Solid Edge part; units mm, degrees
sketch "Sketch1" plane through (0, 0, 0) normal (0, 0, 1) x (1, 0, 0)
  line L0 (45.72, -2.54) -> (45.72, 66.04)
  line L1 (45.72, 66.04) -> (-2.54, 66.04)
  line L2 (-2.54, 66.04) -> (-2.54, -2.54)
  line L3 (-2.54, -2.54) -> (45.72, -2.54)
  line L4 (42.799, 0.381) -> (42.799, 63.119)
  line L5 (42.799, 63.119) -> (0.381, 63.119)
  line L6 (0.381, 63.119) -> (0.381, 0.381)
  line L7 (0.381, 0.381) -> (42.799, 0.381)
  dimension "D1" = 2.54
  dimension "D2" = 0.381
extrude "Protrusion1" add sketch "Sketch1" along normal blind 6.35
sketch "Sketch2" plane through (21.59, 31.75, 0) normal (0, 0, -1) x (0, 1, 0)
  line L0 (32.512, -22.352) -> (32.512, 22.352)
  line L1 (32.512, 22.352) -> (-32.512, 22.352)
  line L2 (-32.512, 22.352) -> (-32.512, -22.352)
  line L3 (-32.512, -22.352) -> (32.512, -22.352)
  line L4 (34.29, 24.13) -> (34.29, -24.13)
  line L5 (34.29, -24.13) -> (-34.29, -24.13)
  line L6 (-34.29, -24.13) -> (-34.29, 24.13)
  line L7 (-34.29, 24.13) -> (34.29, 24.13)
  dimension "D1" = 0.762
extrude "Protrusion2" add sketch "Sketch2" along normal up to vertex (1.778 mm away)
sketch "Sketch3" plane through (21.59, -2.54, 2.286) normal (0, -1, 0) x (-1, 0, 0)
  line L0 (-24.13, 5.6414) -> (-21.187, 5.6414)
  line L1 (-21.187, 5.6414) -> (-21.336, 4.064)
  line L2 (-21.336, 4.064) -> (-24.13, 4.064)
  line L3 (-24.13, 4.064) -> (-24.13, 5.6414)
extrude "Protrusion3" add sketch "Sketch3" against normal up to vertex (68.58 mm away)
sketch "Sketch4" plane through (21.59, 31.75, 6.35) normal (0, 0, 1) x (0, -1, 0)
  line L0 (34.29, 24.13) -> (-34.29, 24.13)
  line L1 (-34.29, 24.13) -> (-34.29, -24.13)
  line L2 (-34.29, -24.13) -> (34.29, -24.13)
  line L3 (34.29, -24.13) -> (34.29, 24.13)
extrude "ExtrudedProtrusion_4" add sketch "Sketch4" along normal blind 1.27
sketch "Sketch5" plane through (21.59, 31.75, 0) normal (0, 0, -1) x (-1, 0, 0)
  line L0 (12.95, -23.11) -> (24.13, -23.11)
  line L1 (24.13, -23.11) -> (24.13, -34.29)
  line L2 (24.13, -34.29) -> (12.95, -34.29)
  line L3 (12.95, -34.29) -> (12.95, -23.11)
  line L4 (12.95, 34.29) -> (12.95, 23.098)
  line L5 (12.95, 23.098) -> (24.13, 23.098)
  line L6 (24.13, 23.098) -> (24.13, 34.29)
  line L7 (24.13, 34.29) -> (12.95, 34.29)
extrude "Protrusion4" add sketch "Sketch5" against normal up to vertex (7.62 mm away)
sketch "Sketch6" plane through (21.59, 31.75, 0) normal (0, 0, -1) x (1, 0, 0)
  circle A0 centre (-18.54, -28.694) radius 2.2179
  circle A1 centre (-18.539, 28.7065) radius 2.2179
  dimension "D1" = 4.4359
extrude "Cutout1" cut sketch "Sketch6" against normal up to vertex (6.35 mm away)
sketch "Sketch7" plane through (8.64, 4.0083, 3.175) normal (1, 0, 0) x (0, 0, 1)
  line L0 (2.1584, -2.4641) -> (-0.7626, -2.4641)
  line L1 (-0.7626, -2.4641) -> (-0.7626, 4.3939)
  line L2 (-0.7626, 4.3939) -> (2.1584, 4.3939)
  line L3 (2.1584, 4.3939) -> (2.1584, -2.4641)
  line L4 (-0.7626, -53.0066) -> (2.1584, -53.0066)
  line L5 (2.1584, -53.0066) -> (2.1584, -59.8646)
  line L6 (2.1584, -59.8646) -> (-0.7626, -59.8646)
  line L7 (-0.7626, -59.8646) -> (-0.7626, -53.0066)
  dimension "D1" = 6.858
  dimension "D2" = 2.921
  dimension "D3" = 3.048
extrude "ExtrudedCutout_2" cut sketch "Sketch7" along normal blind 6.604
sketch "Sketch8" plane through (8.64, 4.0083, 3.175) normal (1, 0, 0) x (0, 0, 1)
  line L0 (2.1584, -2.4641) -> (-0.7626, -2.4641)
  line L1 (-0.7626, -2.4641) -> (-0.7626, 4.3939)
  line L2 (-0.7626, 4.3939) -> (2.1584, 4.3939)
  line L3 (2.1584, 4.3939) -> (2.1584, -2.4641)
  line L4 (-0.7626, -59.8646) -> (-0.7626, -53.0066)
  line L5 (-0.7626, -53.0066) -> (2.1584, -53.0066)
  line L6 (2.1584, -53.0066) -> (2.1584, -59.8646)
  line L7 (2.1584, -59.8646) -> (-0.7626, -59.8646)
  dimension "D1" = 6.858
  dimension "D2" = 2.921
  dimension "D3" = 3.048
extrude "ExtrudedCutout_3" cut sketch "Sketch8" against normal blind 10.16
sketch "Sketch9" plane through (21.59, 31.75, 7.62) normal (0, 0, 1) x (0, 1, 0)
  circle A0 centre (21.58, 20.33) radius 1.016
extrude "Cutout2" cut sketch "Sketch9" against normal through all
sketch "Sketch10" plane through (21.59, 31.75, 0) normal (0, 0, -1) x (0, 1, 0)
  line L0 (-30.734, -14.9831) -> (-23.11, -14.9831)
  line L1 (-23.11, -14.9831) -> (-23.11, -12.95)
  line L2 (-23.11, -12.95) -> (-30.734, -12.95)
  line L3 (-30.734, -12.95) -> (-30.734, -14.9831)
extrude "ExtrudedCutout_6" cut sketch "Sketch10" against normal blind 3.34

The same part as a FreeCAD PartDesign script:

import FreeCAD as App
import Part
import Sketcher

V = App.Vector
Q = App.Units.Quantity

doc = App.newDocument("Part")
body = doc.addObject("PartDesign::Body", "Body")

# Sketch on XY plane
sketch1 = body.newObject("Sketcher::SketchObject", "Sketch")
sketch1.AttachmentSupport = (doc.getObject("XY_Plane"), [""])
sketch1.MapMode = "FlatFace"
sketch1.addGeometry([
    Part.LineSegment(V(-2.54, -2.54, 0), V(45.72, -2.54, 0)),  # 0
    Part.LineSegment(V(45.72, -2.54, 0), V(45.72, 66.04, 0)),  # 1
    Part.LineSegment(V(45.72, 66.04, 0), V(-2.54, 66.04, 0)),  # 2
    Part.LineSegment(V(-2.54, 66.04, 0), V(-2.54, -2.54, 0)),  # 3
    Part.LineSegment(V(42.799, 63.119, 0), V(42.799, 0.381, 0)),  # 4
    Part.LineSegment(V(42.799, 0.381, 0), V(0.381, 0.381, 0)),  # 5
    Part.LineSegment(V(0.381, 0.381, 0), V(0.381, 63.119, 0)),  # 6
    Part.LineSegment(V(0.381, 63.119, 0), V(42.799, 63.119, 0)),  # 7
], False)
sketch1.addConstraint([
    Sketcher.Constraint("Coincident", 0, 2, 1, 1),
    Sketcher.Constraint("Coincident", 1, 2, 2, 1),
    Sketcher.Constraint("Coincident", 2, 2, 3, 1),
    Sketcher.Constraint("Coincident", 3, 2, 0, 1),
    Sketcher.Constraint("Coincident", 4, 2, 5, 1),
    Sketcher.Constraint("Coincident", 5, 2, 6, 1),
    Sketcher.Constraint("Coincident", 6, 2, 7, 1),
    Sketcher.Constraint("Coincident", 7, 2, 4, 1),
    Sketcher.Constraint("Horizontal", 0),
    Sketcher.Constraint("Vertical", 1),
    Sketcher.Constraint("Horizontal", 2),
    Sketcher.Constraint("Vertical", 3),
    Sketcher.Constraint("Vertical", 4),
    Sketcher.Constraint("Horizontal", 5),
    Sketcher.Constraint("Vertical", 6),
    Sketcher.Constraint("Horizontal", 7),
    Sketcher.Constraint("DistanceX", 0, 1, 0, 2, Q("1.9 in")),
    Sketcher.Constraint("DistanceY", 1, 1, 1, 2, Q("2.7 in")),
    Sketcher.Constraint("DistanceX", 5, 2, 5, 1, Q("1.67 in")),
    Sketcher.Constraint("DistanceY", 4, 2, 4, 1, Q("2.47 in")),
    Sketcher.Constraint("DistanceX", -1, 1, 0, 2, Q("1.8 in")),
    Sketcher.Constraint("DistanceY", 0, 2, -1, 1, Q("0.1 in")),
    Sketcher.Constraint("DistanceX", -1, 1, 4, 2, Q("1.685 in")),
    Sketcher.Constraint("DistanceY", -1, 1, 4, 2, Q("0.015 in")),
])
pad1 = body.newObject("PartDesign::Pad", "Pad")
pad1.Profile = sketch1
pad1.Length = Q("0.25 in")

# Sketch on XY plane
sketch2 = body.newObject("Sketcher::SketchObject", "Sketch001")
sketch2.AttachmentSupport = (doc.getObject("XY_Plane"), [""])
sketch2.MapMode = "FlatFace"
sketch2.addGeometry([
    Part.LineSegment(V(-2.54, 66.04, 0), V(45.72, 66.04, 0)),  # 0
    Part.LineSegment(V(45.72, 66.04, 0), V(45.72, -2.54, 0)),  # 1
    Part.LineSegment(V(45.72, -2.54, 0), V(-2.54, -2.54, 0)),  # 2
    Part.LineSegment(V(-2.54, -2.54, 0), V(-2.54, 66.04, 0)),  # 3
    Part.LineSegment(V(43.942, 64.262, 0), V(-0.762, 64.262, 0)),  # 4
    Part.LineSegment(V(-0.762, 64.262, 0), V(-0.762, -0.762, 0)),  # 5
    Part.LineSegment(V(-0.762, -0.762, 0), V(43.942, -0.762, 0)),  # 6
    Part.LineSegment(V(43.942, -0.762, 0), V(43.942, 64.262, 0)),  # 7
], False)
sketch2.addConstraint([
    Sketcher.Constraint("Coincident", 0, 2, 1, 1),
    Sketcher.Constraint("Coincident", 1, 2, 2, 1),
    Sketcher.Constraint("Coincident", 2, 2, 3, 1),
    Sketcher.Constraint("Coincident", 3, 2, 0, 1),
    Sketcher.Constraint("Coincident", 4, 2, 5, 1),
    Sketcher.Constraint("Coincident", 5, 2, 6, 1),
    Sketcher.Constraint("Coincident", 6, 2, 7, 1),
    Sketcher.Constraint("Coincident", 7, 2, 4, 1),
    Sketcher.Constraint("Horizontal", 0),
    Sketcher.Constraint("Vertical", 1),
    Sketcher.Constraint("Horizontal", 2),
    Sketcher.Constraint("Vertical", 3),
    Sketcher.Constraint("Horizontal", 4),
    Sketcher.Constraint("Vertical", 5),
    Sketcher.Constraint("Horizontal", 6),
    Sketcher.Constraint("Vertical", 7),
    Sketcher.Constraint("DistanceX", 0, 1, 0, 2, Q("1.9 in")),
    Sketcher.Constraint("DistanceY", 1, 2, 1, 1, Q("2.7 in")),
    Sketcher.Constraint("DistanceX", 4, 2, 4, 1, Q("1.76 in")),
    Sketcher.Constraint("DistanceY", 5, 2, 5, 1, Q("2.56 in")),
    Sketcher.Constraint("DistanceX", -1, 1, 0, 2, Q("1.8 in")),
    Sketcher.Constraint("DistanceY", -1, 1, 0, 2, Q("2.6 in")),
    Sketcher.Constraint("DistanceX", 4, 2, -1, 1, Q("0.03 in")),
    Sketcher.Constraint("DistanceY", -1, 1, 4, 2, Q("2.53 in")),
])
pad2 = body.newObject("PartDesign::Pad", "Pad001")
pad2.Profile = sketch2
pad2.Length = Q("0.07 in")
pad2.Reversed = True

# Sketch on XZ plane
sketch3 = body.newObject("Sketcher::SketchObject", "Sketch002")
sketch3.AttachmentSupport = (doc.getObject("XZ_Plane"), [""])
sketch3.MapMode = "FlatFace"
sketch3.AttachmentOffset = App.Placement(V(0, 0, 0.1 * 25.4), App.Rotation())
sketch3.addGeometry([
    Part.LineSegment(V(42.777, -3.3554, 0), V(45.72, -3.3554, 0)),
    Part.LineSegment(V(45.72, -3.3554, 0), V(45.72, -1.778, 0)),
    Part.LineSegment(V(45.72, -1.778, 0), V(42.926, -1.778, 0)),
    Part.LineSegment(V(42.926, -1.778, 0), V(42.777, -3.3554, 0)),
], False)
sketch3.addConstraint([
    Sketcher.Constraint("Coincident", 0, 2, 1, 1),
    Sketcher.Constraint("Coincident", 1, 2, 2, 1),
    Sketcher.Constraint("Coincident", 2, 2, 3, 1),
    Sketcher.Constraint("Coincident", 3, 2, 0, 1),
    Sketcher.Constraint("Horizontal", 0),
    Sketcher.Constraint("Vertical", 1),
    Sketcher.Constraint("Horizontal", 2),
    Sketcher.Constraint("DistanceX", 2, 2, 2, 1, Q("0.11 in")),
    Sketcher.Constraint("DistanceX", -1, 1, 0, 2, Q("1.8 in")),
    Sketcher.Constraint("DistanceY", 1, 2, -1, 1, Q("0.07 in")),
    Sketcher.Constraint("DistanceY", 1, 1, 1, 2, Q("0.0621 in")),
    Sketcher.Constraint("DistanceX", 0, 1, 0, 2, Q("2.943 mm")),
])
pad3 = body.newObject("PartDesign::Pad", "Pad002")
pad3.Profile = sketch3
pad3.Length = Q("2.7 in")
pad3.Reversed = True

# Sketch on XY plane
sketch4 = body.newObject("Sketcher::SketchObject", "Sketch003")
sketch4.AttachmentSupport = (doc.getObject("XY_Plane"), [""])
sketch4.MapMode = "FlatFace"
sketch4.AttachmentOffset = App.Placement(V(0, 0, 0.25 * 25.4), App.Rotation())
sketch4.addGeometry([
    Part.LineSegment(V(-2.54, -2.54, 0), V(45.72, -2.54, 0)),
    Part.LineSegment(V(45.72, -2.54, 0), V(45.72, 66.04, 0)),
    Part.LineSegment(V(45.72, 66.04, 0), V(-2.54, 66.04, 0)),
    Part.LineSegment(V(-2.54, 66.04, 0), V(-2.54, -2.54, 0)),
], False)
sketch4.addConstraint([
    Sketcher.Constraint("Coincident", 0, 2, 1, 1),
    Sketcher.Constraint("Coincident", 1, 2, 2, 1),
    Sketcher.Constraint("Coincident", 2, 2, 3, 1),
    Sketcher.Constraint("Coincident", 3, 2, 0, 1),
    Sketcher.Constraint("Horizontal", 0),
    Sketcher.Constraint("Vertical", 1),
    Sketcher.Constraint("Horizontal", 2),
    Sketcher.Constraint("Vertical", 3),
    Sketcher.Constraint("DistanceX", 0, 1, 0, 2, Q("1.9 in")),
    Sketcher.Constraint("DistanceY", 1, 1, 1, 2, Q("2.7 in")),
    Sketcher.Constraint("DistanceX", -1, 1, 0, 2, Q("1.8 in")),
    Sketcher.Constraint("DistanceY", 0, 2, -1, 1, Q("0.1 in")),
])
pad4 = body.newObject("PartDesign::Pad", "Pad003")
pad4.Profile = sketch4
pad4.Length = Q("0.05 in")

# Sketch on XY plane
sketch5 = body.newObject("Sketcher::SketchObject", "Sketch004")
sketch5.AttachmentSupport = (doc.getObject("XY_Plane"), [""])
sketch5.MapMode = "FlatFace"
sketch5.addGeometry([
    Part.LineSegment(V(-2.54, 8.64, 0), V(8.64, 8.64, 0)),  # 0
    Part.LineSegment(V(8.64, 8.64, 0), V(8.64, -2.54, 0)),  # 1
    Part.LineSegment(V(8.64, -2.54, 0), V(-2.54, -2.54, 0)),  # 2
    Part.LineSegment(V(-2.54, -2.54, 0), V(-2.54, 8.64, 0)),  # 3
    Part.LineSegment(V(-2.54, 66.04, 0), V(8.64, 66.04, 0)),  # 4
    Part.LineSegment(V(8.64, 66.04, 0), V(8.64, 54.848, 0)),  # 5
    Part.LineSegment(V(8.64, 54.848, 0), V(-2.54, 54.848, 0)),  # 6
    Part.LineSegment(V(-2.54, 54.848, 0), V(-2.54, 66.04, 0)),  # 7
], False)
sketch5.addConstraint([
    Sketcher.Constraint("Coincident", 0, 2, 1, 1),
    Sketcher.Constraint("Coincident", 1, 2, 2, 1),
    Sketcher.Constraint("Coincident", 2, 2, 3, 1),
    Sketcher.Constraint("Coincident", 3, 2, 0, 1),
    Sketcher.Constraint("Coincident", 4, 2, 5, 1),
    Sketcher.Constraint("Coincident", 5, 2, 6, 1),
    Sketcher.Constraint("Coincident", 6, 2, 7, 1),
    Sketcher.Constraint("Coincident", 7, 2, 4, 1),
    Sketcher.Constraint("Horizontal", 0),
    Sketcher.Constraint("Vertical", 1),
    Sketcher.Constraint("Horizontal", 2),
    Sketcher.Constraint("Vertical", 3),
    Sketcher.Constraint("Horizontal", 4),
    Sketcher.Constraint("Vertical", 5),
    Sketcher.Constraint("Horizontal", 6),
    Sketcher.Constraint("Vertical", 7),
    Sketcher.Constraint("Vertical", 1, 2, 4, 2),
    Sketcher.Constraint("Vertical", 3, 2, 6, 2),
    Sketcher.Constraint("Equal", 6, 1),
    Sketcher.Constraint("DistanceY", 1, 2, -1, 1, Q("0.1 in")),
    Sketcher.Constraint("DistanceX", 2, 2, -1, 1, Q("0.1 in")),
    Sketcher.Constraint("DistanceY", -1, 1, 4, 2, Q("2.6 in")),
    Sketcher.Constraint("DistanceX", 0, 1, 0, 2, Q("11.18 mm")),
    Sketcher.Constraint("DistanceY", 5, 2, 5, 1, Q("11.192 mm")),
])
pad5 = body.newObject("PartDesign::Pad", "Pad004")
pad5.Profile = sketch5
pad5.Length = Q("0.3 in")

# Sketch on XY plane
sketch6 = body.newObject("Sketcher::SketchObject", "Sketch005")
sketch6.AttachmentSupport = (doc.getObject("XY_Plane"), [""])
sketch6.MapMode = "FlatFace"
sketch6.addGeometry([
    Part.Circle(V(3.05, 60.444, 0), V(0, 0, 1), 2.2179),
    Part.Circle(V(3.051, 3.0435, 0), V(0, 0, 1), 2.2179),
], False)
sketch6.addConstraint([
    Sketcher.Constraint("Equal", 0, 1),
    Sketcher.Constraint("Diameter", 0, Q("4.4358 mm")),
    Sketcher.Constraint("DistanceX", -1, 1, 0, 3, Q("3.05 mm")),
    Sketcher.Constraint("DistanceY", -1, 1, 0, 3, Q("60.444 mm")),
    Sketcher.Constraint("DistanceX", -1, 1, 1, 3, Q("3.051 mm")),
    Sketcher.Constraint("DistanceY", -1, 1, 1, 3, Q("3.0435 mm")),
])
pocket1 = body.newObject("PartDesign::Pocket", "Pocket")
pocket1.Profile = sketch6
pocket1.Length = Q("0.25 in")
pocket1.Reversed = True

# Sketch on YZ plane
sketch7 = body.newObject("Sketcher::SketchObject", "Sketch006")
sketch7.AttachmentSupport = (doc.getObject("YZ_Plane"), [""])
sketch7.MapMode = "FlatFace"
sketch7.AttachmentOffset = App.Placement(V(0, 0, 8.64), App.Rotation())
sketch7.addGeometry([
    Part.LineSegment(V(6.4724, 2.4124, 0), V(6.4724, 5.3334, 0)),  # 0
    Part.LineSegment(V(6.4724, 5.3334, 0), V(-0.3856, 5.3334, 0)),  # 1
    Part.LineSegment(V(-0.3856, 5.3334, 0), V(-0.3856, 2.4124, 0)),  # 2
    Part.LineSegment(V(-0.3856, 2.4124, 0), V(6.4724, 2.4124, 0)),  # 3
    Part.LineSegment(V(57.0149, 5.3334, 0), V(57.0149, 2.4124, 0)),  # 4
    Part.LineSegment(V(57.0149, 2.4124, 0), V(63.8729, 2.4124, 0)),  # 5
    Part.LineSegment(V(63.8729, 2.4124, 0), V(63.8729, 5.3334, 0)),  # 6
    Part.LineSegment(V(63.8729, 5.3334, 0), V(57.0149, 5.3334, 0)),  # 7
], False)
sketch7.addConstraint([
    Sketcher.Constraint("Coincident", 0, 2, 1, 1),
    Sketcher.Constraint("Coincident", 1, 2, 2, 1),
    Sketcher.Constraint("Coincident", 2, 2, 3, 1),
    Sketcher.Constraint("Coincident", 3, 2, 0, 1),
    Sketcher.Constraint("Coincident", 4, 2, 5, 1),
    Sketcher.Constraint("Coincident", 5, 2, 6, 1),
    Sketcher.Constraint("Coincident", 6, 2, 7, 1),
    Sketcher.Constraint("Coincident", 7, 2, 4, 1),
    Sketcher.Constraint("Vertical", 0),
    Sketcher.Constraint("Horizontal", 1),
    Sketcher.Constraint("Vertical", 2),
    Sketcher.Constraint("Horizontal", 3),
    Sketcher.Constraint("Vertical", 4),
    Sketcher.Constraint("Horizontal", 5),
    Sketcher.Constraint("Vertical", 6),
    Sketcher.Constraint("Horizontal", 7),
    Sketcher.Constraint("Horizontal", 3, 2, 4, 2),
    Sketcher.Constraint("Horizontal", 1, 2, 6, 2),
    Sketcher.Constraint("Equal", 3, 5),
    Sketcher.Constraint("DistanceX", 1, 2, 1, 1, Q("0.27 in")),
    Sketcher.Constraint("DistanceY", 0, 1, 0, 2, Q("0.115 in")),
    Sketcher.Constraint("DistanceX", -1, 1, 0, 2, Q("6.4724 mm")),
    Sketcher.Constraint("DistanceY", -1, 1, 0, 2, Q("5.3334 mm")),
    Sketcher.Constraint("DistanceX", -1, 1, 4, 2, Q("57.015 mm")),
])
pocket2 = body.newObject("PartDesign::Pocket", "Pocket001")
pocket2.Profile = sketch7
pocket2.Length = Q("0.26 in")
pocket2.Reversed = True

# Sketch on YZ plane
sketch8 = body.newObject("Sketcher::SketchObject", "Sketch007")
sketch8.AttachmentSupport = (doc.getObject("YZ_Plane"), [""])
sketch8.MapMode = "FlatFace"
sketch8.AttachmentOffset = App.Placement(V(0, 0, 8.64), App.Rotation())
sketch8.addGeometry([
    Part.LineSegment(V(6.4724, 2.4124, 0), V(6.4724, 5.3334, 0)),  # 0
    Part.LineSegment(V(6.4724, 5.3334, 0), V(-0.3856, 5.3334, 0)),  # 1
    Part.LineSegment(V(-0.3856, 5.3334, 0), V(-0.3856, 2.4124, 0)),  # 2
    Part.LineSegment(V(-0.3856, 2.4124, 0), V(6.4724, 2.4124, 0)),  # 3
    Part.LineSegment(V(57.0149, 2.4124, 0), V(63.8729, 2.4124, 0)),  # 4
    Part.LineSegment(V(63.8729, 2.4124, 0), V(63.8729, 5.3334, 0)),  # 5
    Part.LineSegment(V(63.8729, 5.3334, 0), V(57.0149, 5.3334, 0)),  # 6
    Part.LineSegment(V(57.0149, 5.3334, 0), V(57.0149, 2.4124, 0)),  # 7
], False)
sketch8.addConstraint([
    Sketcher.Constraint("Coincident", 0, 2, 1, 1),
    Sketcher.Constraint("Coincident", 1, 2, 2, 1),
    Sketcher.Constraint("Coincident", 2, 2, 3, 1),
    Sketcher.Constraint("Coincident", 3, 2, 0, 1),
    Sketcher.Constraint("Coincident", 4, 2, 5, 1),
    Sketcher.Constraint("Coincident", 5, 2, 6, 1),
    Sketcher.Constraint("Coincident", 6, 2, 7, 1),
    Sketcher.Constraint("Coincident", 7, 2, 4, 1),
    Sketcher.Constraint("Vertical", 0),
    Sketcher.Constraint("Horizontal", 1),
    Sketcher.Constraint("Vertical", 2),
    Sketcher.Constraint("Horizontal", 3),
    Sketcher.Constraint("Horizontal", 4),
    Sketcher.Constraint("Vertical", 5),
    Sketcher.Constraint("Horizontal", 6),
    Sketcher.Constraint("Vertical", 7),
    Sketcher.Constraint("Horizontal", 3, 2, 4, 2),
    Sketcher.Constraint("Horizontal", 1, 2, 5, 2),
    Sketcher.Constraint("Equal", 3, 4),
    Sketcher.Constraint("DistanceX", 1, 2, 1, 1, Q("0.27 in")),
    Sketcher.Constraint("DistanceY", 0, 1, 0, 2, Q("0.115 in")),
    Sketcher.Constraint("DistanceX", -1, 1, 0, 2, Q("6.4724 mm")),
    Sketcher.Constraint("DistanceY", -1, 1, 0, 2, Q("5.3334 mm")),
    Sketcher.Constraint("DistanceX", -1, 1, 4, 2, Q("63.873 mm")),
])
pocket3 = body.newObject("PartDesign::Pocket", "Pocket002")
pocket3.Profile = sketch8
pocket3.Length = Q("0.4 in")

# Sketch on XY plane
sketch9 = body.newObject("Sketcher::SketchObject", "Sketch008")
sketch9.AttachmentSupport = (doc.getObject("XY_Plane"), [""])
sketch9.MapMode = "FlatFace"
sketch9.AttachmentOffset = App.Placement(V(0, 0, 0.3 * 25.4), App.Rotation())
sketch9.addGeometry(Part.Circle(V(1.26, 53.33, 0), V(0, 0, 1), 1.016), False)
sketch9.addConstraint([
    Sketcher.Constraint("Diameter", 0, Q("0.08 in")),
    Sketcher.Constraint("DistanceX", -1, 1, 0, 3, Q("0.0496 in")),
    Sketcher.Constraint("DistanceY", -1, 1, 0, 3, Q("2.0996 in")),
])
pocket4 = body.newObject("PartDesign::Pocket", "Pocket003")
pocket4.Profile = sketch9
pocket4.Type = "ThroughAll"

# Sketch on XY plane
sketch10 = body.newObject("Sketcher::SketchObject", "Sketch009")
sketch10.AttachmentSupport = (doc.getObject("XY_Plane"), [""])
sketch10.MapMode = "FlatFace"
sketch10.addGeometry([
    Part.LineSegment(V(8.64, 1.016, 0), V(6.6069, 1.016, 0)),
    Part.LineSegment(V(6.6069, 1.016, 0), V(6.6069, 8.64, 0)),
    Part.LineSegment(V(6.6069, 8.64, 0), V(8.64, 8.64, 0)),
    Part.LineSegment(V(8.64, 8.64, 0), V(8.64, 1.016, 0)),
], False)
sketch10.addConstraint([
    Sketcher.Constraint("Coincident", 0, 2, 1, 1),
    Sketcher.Constraint("Coincident", 1, 2, 2, 1),
    Sketcher.Constraint("Coincident", 2, 2, 3, 1),
    Sketcher.Constraint("Coincident", 3, 2, 0, 1),
    Sketcher.Constraint("Horizontal", 0),
    Sketcher.Constraint("Vertical", 1),
    Sketcher.Constraint("Horizontal", 2),
    Sketcher.Constraint("Vertical", 3),
    Sketcher.Constraint("DistanceY", -1, 1, 0, 2, Q("0.04 in")),
    Sketcher.Constraint("DistanceX", 0, 2, 0, 1, Q("2.033 mm")),
    Sketcher.Constraint("DistanceY", 1, 1, 1, 2, Q("7.624 mm")),
    Sketcher.Constraint("DistanceX", -1, 1, 0, 2, Q("6.607 mm")),
])
pocket5 = body.newObject("PartDesign::Pocket", "Pocket004")
pocket5.Profile = sketch10
pocket5.Length = Q("0.1314961 in")
pocket5.Reversed = True

doc.recompute()
